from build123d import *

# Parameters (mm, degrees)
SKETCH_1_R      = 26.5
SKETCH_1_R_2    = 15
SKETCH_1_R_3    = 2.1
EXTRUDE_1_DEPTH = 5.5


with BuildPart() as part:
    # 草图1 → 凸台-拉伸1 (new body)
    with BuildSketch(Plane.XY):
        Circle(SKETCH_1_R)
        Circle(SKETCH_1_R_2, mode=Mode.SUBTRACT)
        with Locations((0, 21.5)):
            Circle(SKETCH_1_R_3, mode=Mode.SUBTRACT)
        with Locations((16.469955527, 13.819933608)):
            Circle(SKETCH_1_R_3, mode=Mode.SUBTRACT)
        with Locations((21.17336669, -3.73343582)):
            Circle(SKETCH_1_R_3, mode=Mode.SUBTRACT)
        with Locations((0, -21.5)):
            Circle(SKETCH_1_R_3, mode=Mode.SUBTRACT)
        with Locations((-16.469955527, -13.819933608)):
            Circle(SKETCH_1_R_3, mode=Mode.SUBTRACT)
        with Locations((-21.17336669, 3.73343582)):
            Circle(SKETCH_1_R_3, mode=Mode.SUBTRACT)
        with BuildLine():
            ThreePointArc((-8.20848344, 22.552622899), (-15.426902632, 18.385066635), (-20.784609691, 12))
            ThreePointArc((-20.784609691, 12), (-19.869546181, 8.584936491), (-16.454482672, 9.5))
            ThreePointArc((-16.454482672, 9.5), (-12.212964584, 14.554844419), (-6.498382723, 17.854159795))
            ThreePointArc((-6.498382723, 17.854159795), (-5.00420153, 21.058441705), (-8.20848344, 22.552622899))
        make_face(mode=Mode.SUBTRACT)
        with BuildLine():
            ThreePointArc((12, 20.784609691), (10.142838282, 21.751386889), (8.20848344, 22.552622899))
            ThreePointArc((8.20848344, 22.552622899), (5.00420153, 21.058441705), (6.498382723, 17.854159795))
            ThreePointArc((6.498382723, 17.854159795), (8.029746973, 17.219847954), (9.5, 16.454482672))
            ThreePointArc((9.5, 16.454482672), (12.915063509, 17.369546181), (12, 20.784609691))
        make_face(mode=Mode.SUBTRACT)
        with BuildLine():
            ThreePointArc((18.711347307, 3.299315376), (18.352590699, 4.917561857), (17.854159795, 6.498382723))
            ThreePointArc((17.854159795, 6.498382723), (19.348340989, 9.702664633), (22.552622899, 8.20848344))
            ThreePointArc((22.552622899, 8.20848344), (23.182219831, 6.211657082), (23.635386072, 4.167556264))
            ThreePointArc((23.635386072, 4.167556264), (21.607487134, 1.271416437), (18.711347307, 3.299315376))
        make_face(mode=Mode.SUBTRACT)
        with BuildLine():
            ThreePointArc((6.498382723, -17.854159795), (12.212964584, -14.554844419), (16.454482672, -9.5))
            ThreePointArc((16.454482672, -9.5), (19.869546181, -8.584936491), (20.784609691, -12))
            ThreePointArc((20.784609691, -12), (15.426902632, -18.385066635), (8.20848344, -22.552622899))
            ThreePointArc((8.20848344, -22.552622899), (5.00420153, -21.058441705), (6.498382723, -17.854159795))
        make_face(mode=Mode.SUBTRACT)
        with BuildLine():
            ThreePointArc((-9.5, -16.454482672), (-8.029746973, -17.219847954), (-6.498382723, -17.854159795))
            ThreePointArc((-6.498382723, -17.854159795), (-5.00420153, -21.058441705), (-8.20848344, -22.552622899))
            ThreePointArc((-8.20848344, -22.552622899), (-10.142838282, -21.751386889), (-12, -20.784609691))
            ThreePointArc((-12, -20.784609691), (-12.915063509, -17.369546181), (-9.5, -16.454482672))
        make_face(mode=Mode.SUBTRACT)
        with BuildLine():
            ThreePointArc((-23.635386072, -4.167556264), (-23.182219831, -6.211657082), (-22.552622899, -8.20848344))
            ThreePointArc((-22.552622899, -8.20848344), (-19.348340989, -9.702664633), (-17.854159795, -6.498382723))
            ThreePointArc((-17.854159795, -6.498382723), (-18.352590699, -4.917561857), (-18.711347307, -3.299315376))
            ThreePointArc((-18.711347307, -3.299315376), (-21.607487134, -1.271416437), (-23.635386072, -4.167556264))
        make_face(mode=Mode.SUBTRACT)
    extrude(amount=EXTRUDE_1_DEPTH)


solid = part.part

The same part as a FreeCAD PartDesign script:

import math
import FreeCAD as App
import Part
import Sketcher

V = App.Vector
Q = App.Units.Quantity

doc = App.newDocument("Part")
body = doc.addObject("PartDesign::Body", "Body")

sketch1 = body.newObject("Sketcher::SketchObject", "Sketch")
sketch1.AttachmentSupport = (doc.getObject("XY_Plane"), [""])
sketch1.MapMode = "FlatFace"
sketch1.addGeometry([
    Part.Circle(V(0, 0, 0), V(0, 0, 1), 26.5),
    Part.Circle(V(-16.5, -13.8, 0), V(0, 0, 1), 2.1),
    Part.ArcOfCircle(Part.Circle(V(-10.8, -18.6, 0), V(0, 0, 1), 2.5), math.radians(60), math.radians(240)),
    Part.ArcOfCircle(Part.Circle(V(0, 0, 0), V(0, 0, 1), 19), math.radians(-120), math.radians(-110)),
    Part.ArcOfCircle(Part.Circle(V(-7.4, -20.2, 0), V(0, 0, 1), 2.5), math.radians(-110), math.radians(70)),
    Part.ArcOfCircle(Part.Circle(V(0, 0, 0), V(0, 0, 1), 24), math.radians(-120), math.radians(-110)),
    Part.ArcOfCircle(Part.Circle(V(0, 0, 0), V(0, 0, 1), 24), math.radians(-170), math.radians(-160)),
    Part.ArcOfCircle(Part.Circle(V(-21.2, -3.7, 0), V(0, 0, 1), 2.5), math.radians(10), math.radians(190)),
    Part.ArcOfCircle(Part.Circle(V(0, 0, 0), V(0, 0, 1), 19), math.radians(-170), math.radians(-160)),
    Part.ArcOfCircle(Part.Circle(V(-20.2, -7.4, 0), V(0, 0, 1), 2.5), math.radians(-160), math.radians(20)),
    Part.Circle(V(0, -21.5, 0), V(0, 0, 1), 2.1),
    Part.ArcOfCircle(Part.Circle(V(7.4, -20.2, 0), V(0, 0, 1), 2.5), math.radians(110), math.radians(290)),
    Part.ArcOfCircle(Part.Circle(V(0, 0, 0), V(0, 0, 1), 19), math.radians(-70), math.radians(-30)),
    Part.ArcOfCircle(Part.Circle(V(18.6, -10.8, 0), V(0, 0, 1), 2.5), math.radians(-30), math.radians(150)),
    Part.ArcOfCircle(Part.Circle(V(0, 0, 0), V(0, 0, 1), 24), math.radians(-70), math.radians(-30)),
    Part.Circle(V(21.2, -3.7, 0), V(0, 0, 1), 2.1),
    Part.Circle(V(-21.2, 3.7, 0), V(0, 0, 1), 2.1),
    Part.ArcOfCircle(Part.Circle(V(0, 0, 0), V(0, 0, 1), 24), math.radians(110), math.radians(150)),
    Part.ArcOfCircle(Part.Circle(V(-7.4, 20.2, 0), V(0, 0, 1), 2.5), math.radians(-70), math.radians(110)),
    Part.ArcOfCircle(Part.Circle(V(0, 0, 0), V(0, 0, 1), 19), math.radians(110), math.radians(150)),
    Part.ArcOfCircle(Part.Circle(V(-18.6, 10.8, 0), V(0, 0, 1), 2.5), math.radians(150), math.radians(330)),
    Part.Circle(V(0, 0, 0), V(0, 0, 1), 15),
    Part.ArcOfCircle(Part.Circle(V(21.2, 3.7, 0), V(0, 0, 1), 2.5), math.radians(-170), math.radians(10)),
    Part.ArcOfCircle(Part.Circle(V(0, 0, 0), V(0, 0, 1), 19), math.radians(10), math.radians(20)),
    Part.ArcOfCircle(Part.Circle(V(20.2, 7.4, 0), V(0, 0, 1), 2.5), math.radians(20), math.radians(200)),
    Part.ArcOfCircle(Part.Circle(V(0, 0, 0), V(0, 0, 1), 24), math.radians(10), math.radians(20)),
    Part.Circle(V(0, 21.5, 0), V(0, 0, 1), 2.1),
    Part.ArcOfCircle(Part.Circle(V(0, 0, 0), V(0, 0, 1), 24), math.radians(60), math.radians(70)),
    Part.ArcOfCircle(Part.Circle(V(10.8, 18.6, 0), V(0, 0, 1), 2.5), math.radians(-120), math.radians(60)),
    Part.ArcOfCircle(Part.Circle(V(0, 0, 0), V(0, 0, 1), 19), math.radians(60), math.radians(70)),
    Part.ArcOfCircle(Part.Circle(V(7.4, 20.2, 0), V(0, 0, 1), 2.5), math.radians(70), math.radians(250)),
    Part.Circle(V(16.5, 13.8, 0), V(0, 0, 1), 2.1),
], False)
sketch1.addConstraint([
    Sketcher.Constraint("Tangent", 2, 1, 3, 1),
    Sketcher.Constraint("Tangent", 3, 2, 4, 2),
    Sketcher.Constraint("Tangent", 4, 1, 5, 2),
    Sketcher.Constraint("Tangent", 5, 1, 2, 2),
    Sketcher.Constraint("Tangent", 6, 1, 7, 2),
    Sketcher.Constraint("Tangent", 7, 1, 8, 1),
    Sketcher.Constraint("Tangent", 8, 2, 9, 2),
    Sketcher.Constraint("Tangent", 9, 1, 6, 2),
    Sketcher.Constraint("Tangent", 11, 1, 12, 1),
    Sketcher.Constraint("Tangent", 12, 2, 13, 2),
    Sketcher.Constraint("Tangent", 13, 1, 14, 2),
    Sketcher.Constraint("Tangent", 14, 1, 11, 2),
    Sketcher.Constraint("Tangent", 17, 1, 18, 2),
    Sketcher.Constraint("Tangent", 18, 1, 19, 1),
    Sketcher.Constraint("Tangent", 19, 2, 20, 2),
    Sketcher.Constraint("Tangent", 20, 1, 17, 2),
    Sketcher.Constraint("Tangent", 22, 1, 23, 1),
    Sketcher.Constraint("Tangent", 23, 2, 24, 2),
    Sketcher.Constraint("Tangent", 24, 1, 25, 2),
    Sketcher.Constraint("Tangent", 25, 1, 22, 2),
    Sketcher.Constraint("Tangent", 27, 1, 28, 2),
    Sketcher.Constraint("Tangent", 28, 1, 29, 1),
    Sketcher.Constraint("Tangent", 29, 2, 30, 2),
    Sketcher.Constraint("Tangent", 30, 1, 27, 2),
    Sketcher.Constraint("Coincident", 0, 3, -1, 1),
    Sketcher.Constraint("Coincident", 3, 3, -1, 1),
    Sketcher.Constraint("Coincident", 5, 3, -1, 1),
    Sketcher.Constraint("Coincident", 6, 3, -1, 1),
    Sketcher.Constraint("Coincident", 8, 3, -1, 1),
    Sketcher.Constraint("Coincident", 12, 3, -1, 1),
    Sketcher.Constraint("Coincident", 14, 3, -1, 1),
    Sketcher.Constraint("Coincident", 17, 3, -1, 1),
    Sketcher.Constraint("Coincident", 19, 3, -1, 1),
    Sketcher.Constraint("Coincident", 21, 3, -1, 1),
    Sketcher.Constraint("Coincident", 23, 3, -1, 1),
    Sketcher.Constraint("Coincident", 25, 3, -1, 1),
    Sketcher.Constraint("Coincident", 27, 3, -1, 1),
    Sketcher.Constraint("Coincident", 29, 3, -1, 1),
    Sketcher.Constraint("Equal", 5, 6),
    Sketcher.Constraint("Equal", 4, 7),
    Sketcher.Constraint("Equal", 1, 10),
    Sketcher.Constraint("Equal", 9, 11),
    Sketcher.Constraint("Equal", 8, 12),
    Sketcher.Constraint("Equal", 10, 15),
    Sketcher.Constraint("Equal", 15, 16),
    Sketcher.Constraint("Equal", 14, 17),
    Sketcher.Constraint("Equal", 13, 18),
    Sketcher.Constraint("Equal", 20, 22),
    Sketcher.Constraint("Equal", 19, 23),
    Sketcher.Constraint("Equal", 16, 26),
    Sketcher.Constraint("Equal", 25, 27),
    Sketcher.Constraint("Equal", 24, 28),
    Sketcher.Constraint("Equal", 26, 31),
    Sketcher.Constraint("Symmetric", 15, 3, 16, 3, -1, 1),
    Sketcher.Constraint("Symmetric", 10, 3, 26, 3, -1, 1),
    Sketcher.Constraint("Symmetric", 1, 3, 31, 3, -1, 1),
    Sketcher.Constraint("Symmetric", 7, 3, 15, 3, -2),
    Sketcher.Constraint("PointOnObject", 10, 3, -2),
    Sketcher.Constraint("Horizontal", 4, 3, 11, 3),
    Sketcher.Constraint("Horizontal", 16, 3, 22, 3),
    Sketcher.Constraint("Horizontal", 18, 3, 30, 3),
    Sketcher.Constraint("Vertical", 4, 3, 18, 3),
    Sketcher.Constraint("Diameter", 0, Q("53 mm")),
    Sketcher.Constraint("Diameter", 21, Q("30 mm")),
    Sketcher.Constraint("Radius", 3, Q("19 mm")),
    Sketcher.Constraint("Radius", 5, Q("24 mm")),
    Sketcher.Constraint("Diameter", 1, Q("4.2 mm")),
    Sketcher.Constraint("DistanceX", 5, 1, -1, 1, Q("12 mm")),
    Sketcher.Constraint("DistanceY", 13, 1, -1, 1, Q("12 mm")),
    Sketcher.Constraint("DistanceY", -1, 1, 20, 1, Q("12 mm")),
    Sketcher.Constraint("DistanceX", -1, 1, 27, 1, Q("12 mm")),
    Sketcher.Constraint("DistanceY", 10, 3, -1, 1, Q("21.5 mm")),
    Sketcher.Constraint("DistanceX", 14, 1, 12, 2, Q("8.245999 mm")),
    Sketcher.Constraint("DistanceY", 1, 3, 9, 3, Q("6.466501 mm")),
    Sketcher.Constraint("DistanceY", 24, 3, 31, 3, Q("6.466501 mm")),
    Sketcher.Constraint("DistanceY", 9, 1, 8, 2, Q("1.710101 mm")),
    Sketcher.Constraint("DistanceX", 7, 3, 1, 3, Q("4.703411 mm")),
    Sketcher.Constraint("DistanceY", 2, 3, 7, 3, Q("14.88611 mm")),
])
pad1 = body.newObject("PartDesign::Pad", "Pad")
pad1.Profile = sketch1
pad1.Length = 5.5

doc.recompute()
